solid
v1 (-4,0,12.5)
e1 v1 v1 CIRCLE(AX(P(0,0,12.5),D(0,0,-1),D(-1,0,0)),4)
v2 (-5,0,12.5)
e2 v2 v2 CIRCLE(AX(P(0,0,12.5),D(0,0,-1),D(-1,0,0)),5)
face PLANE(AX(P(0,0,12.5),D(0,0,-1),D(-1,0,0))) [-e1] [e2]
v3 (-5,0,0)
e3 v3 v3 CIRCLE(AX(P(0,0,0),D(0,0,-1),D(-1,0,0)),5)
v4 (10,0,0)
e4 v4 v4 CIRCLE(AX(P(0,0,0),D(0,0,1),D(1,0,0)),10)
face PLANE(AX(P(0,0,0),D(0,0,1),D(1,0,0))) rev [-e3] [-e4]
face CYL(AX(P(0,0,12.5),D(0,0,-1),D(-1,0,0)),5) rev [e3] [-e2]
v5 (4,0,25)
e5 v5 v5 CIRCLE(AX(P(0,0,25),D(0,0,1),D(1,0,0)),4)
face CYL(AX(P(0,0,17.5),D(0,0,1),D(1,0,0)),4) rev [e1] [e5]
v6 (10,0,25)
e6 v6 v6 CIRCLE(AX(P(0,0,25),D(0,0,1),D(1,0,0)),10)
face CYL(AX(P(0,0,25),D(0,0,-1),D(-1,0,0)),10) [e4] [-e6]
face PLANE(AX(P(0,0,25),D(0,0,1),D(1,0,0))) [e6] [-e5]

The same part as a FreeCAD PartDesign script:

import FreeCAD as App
import Part
import Sketcher
from FreeCAD import Vector

doc = App.newDocument("Part")
body = doc.addObject("PartDesign::Body", "Body")

# Sketch on XY plane
sketch1 = doc.addObject("Sketcher::SketchObject", "Sketch")
body.addObject(sketch1)
sketch1.AttachmentSupport = (doc.XY_Plane, [""])
sketch1.MapMode = "FlatFace"
sketch1.addGeometry(Part.Circle(Vector(0, 0, 0), Vector(0, 0, 1), 10), False)
sketch1.addConstraint([
    Sketcher.Constraint("Coincident", 0, 3, -1, 1),
    Sketcher.Constraint("Diameter", 0, 20.0),
])
pad1 = doc.addObject("PartDesign::Pad", "Pad")
body.addObject(pad1)
pad1.Profile = sketch1
pad1.Length = 25

# Sketch on XY plane
sketch2 = doc.addObject("Sketcher::SketchObject", "Sketch001")
body.addObject(sketch2)
sketch2.AttachmentSupport = (doc.XY_Plane, [""])
sketch2.MapMode = "FlatFace"
sketch2.AttachmentOffset = App.Placement(Vector(0, 0, 25), App.Rotation())
sketch2.addGeometry(Part.Circle(Vector(0, 0, 0), Vector(0, 0, 1), 4), False)
sketch2.addConstraint([
    Sketcher.Constraint("Coincident", 0, 3, -1, 1),
    Sketcher.Constraint("Diameter", 0, 8.0),
])
pocket1 = doc.addObject("PartDesign::Pocket", "Pocket")
body.addObject(pocket1)
pocket1.Profile = sketch2
pocket1.Length = 7.5

# Sketch on XY plane
sketch3 = doc.addObject("Sketcher::SketchObject", "Sketch002")
body.addObject(sketch3)
sketch3.AttachmentSupport = (doc.XY_Plane, [""])
sketch3.MapMode = "FlatFace"
sketch3.addGeometry(Part.Circle(Vector(0, 0, 0), Vector(0, 0, 1), 5), False)
sketch3.addConstraint([
    Sketcher.Constraint("Coincident", 0, 3, -1, 1),
    Sketcher.Constraint("Diameter", 0, 10.0),
])
pocket2 = doc.addObject("PartDesign::Pocket", "Pocket001")
body.addObject(pocket2)
pocket2.Profile = sketch3
pocket2.Length = 12.5
pocket2.Reversed = True

# Sketch on XY plane
sketch4 = doc.addObject("Sketcher::SketchObject", "Sketch003")
body.addObject(sketch4)
sketch4.AttachmentSupport = (doc.XY_Plane, [""])
sketch4.MapMode = "FlatFace"
sketch4.AttachmentOffset = App.Placement(Vector(0, 0, 17.5), App.Rotation())
sketch4.addGeometry(Part.Circle(Vector(0, 0, 0), Vector(0, 0, 1), 4), False)
sketch4.addConstraint([
    Sketcher.Constraint("Coincident", 0, 3, -1, 1),
    Sketcher.Constraint("Diameter", 0, 8.0),
])
pocket3 = doc.addObject("PartDesign::Pocket", "Pocket002")
body.addObject(pocket3)
pocket3.Profile = sketch4
pocket3.Type = "ThroughAll"

doc.recompute()
